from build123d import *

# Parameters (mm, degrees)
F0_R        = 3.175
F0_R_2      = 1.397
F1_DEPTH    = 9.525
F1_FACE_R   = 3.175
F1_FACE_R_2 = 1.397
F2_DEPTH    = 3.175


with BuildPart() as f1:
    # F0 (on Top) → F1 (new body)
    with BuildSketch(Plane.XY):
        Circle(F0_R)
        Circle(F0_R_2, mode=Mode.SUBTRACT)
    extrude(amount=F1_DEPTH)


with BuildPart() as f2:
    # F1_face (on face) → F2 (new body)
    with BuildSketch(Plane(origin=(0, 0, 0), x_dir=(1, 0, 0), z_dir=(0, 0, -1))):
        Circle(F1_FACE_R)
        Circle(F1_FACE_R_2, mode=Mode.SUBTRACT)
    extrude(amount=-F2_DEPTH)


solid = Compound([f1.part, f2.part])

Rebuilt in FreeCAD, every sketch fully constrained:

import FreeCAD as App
import Part
import Sketcher
Q = App.Units.Quantity

doc = App.newDocument("Part")
body = doc.addObject("PartDesign::Body", "Body")

sketch1 = body.newObject("Sketcher::SketchObject", "Sketch")
sketch1.AttachmentSupport = (doc.getObject("XY_Plane"), [""])
sketch1.MapMode = "FlatFace"
sketch1.addGeometry([
    Part.Circle(App.Vector(0, 0, 0), App.Vector(0, 0, 1), 3.175),
    Part.Circle(App.Vector(0, 0, 0), App.Vector(0, 0, 1), 1.397),
], False)
sketch1.addConstraint([
    Sketcher.Constraint("Coincident", 0, 3, -1, 1),
    Sketcher.Constraint("Coincident", 1, 3, -1, 1),
    Sketcher.Constraint("Diameter", 0, Q("0.25 in")),
    Sketcher.Constraint("Diameter", 1, Q("0.11 in")),
])
pad1 = body.newObject("PartDesign::Pad", "Pad")
pad1.Profile = sketch1
pad1.Length = Q("0.375 in")
body2 = doc.addObject("PartDesign::Body", "Body001")

sketch2 = body2.newObject("Sketcher::SketchObject", "Sketch001")
sketch2.AttachmentSupport = (doc.getObject("XY_Plane001"), [""])
sketch2.MapMode = "FlatFace"
sketch2.addGeometry([
    Part.Circle(App.Vector(0, 0, 0), App.Vector(0, 0, 1), 3.175),
    Part.Circle(App.Vector(0, 0, 0), App.Vector(0, 0, 1), 1.397),
], False)
sketch2.addConstraint([
    Sketcher.Constraint("Coincident", 0, 3, -1, 1),
    Sketcher.Constraint("Coincident", 1, 3, -1, 1),
    Sketcher.Constraint("Diameter", 0, Q("0.25 in")),
    Sketcher.Constraint("Diameter", 1, Q("0.11 in")),
])
pad2 = body2.newObject("PartDesign::Pad", "Pad001")
pad2.Profile = sketch2
pad2.Length = Q("0.125 in")

doc.recompute()
